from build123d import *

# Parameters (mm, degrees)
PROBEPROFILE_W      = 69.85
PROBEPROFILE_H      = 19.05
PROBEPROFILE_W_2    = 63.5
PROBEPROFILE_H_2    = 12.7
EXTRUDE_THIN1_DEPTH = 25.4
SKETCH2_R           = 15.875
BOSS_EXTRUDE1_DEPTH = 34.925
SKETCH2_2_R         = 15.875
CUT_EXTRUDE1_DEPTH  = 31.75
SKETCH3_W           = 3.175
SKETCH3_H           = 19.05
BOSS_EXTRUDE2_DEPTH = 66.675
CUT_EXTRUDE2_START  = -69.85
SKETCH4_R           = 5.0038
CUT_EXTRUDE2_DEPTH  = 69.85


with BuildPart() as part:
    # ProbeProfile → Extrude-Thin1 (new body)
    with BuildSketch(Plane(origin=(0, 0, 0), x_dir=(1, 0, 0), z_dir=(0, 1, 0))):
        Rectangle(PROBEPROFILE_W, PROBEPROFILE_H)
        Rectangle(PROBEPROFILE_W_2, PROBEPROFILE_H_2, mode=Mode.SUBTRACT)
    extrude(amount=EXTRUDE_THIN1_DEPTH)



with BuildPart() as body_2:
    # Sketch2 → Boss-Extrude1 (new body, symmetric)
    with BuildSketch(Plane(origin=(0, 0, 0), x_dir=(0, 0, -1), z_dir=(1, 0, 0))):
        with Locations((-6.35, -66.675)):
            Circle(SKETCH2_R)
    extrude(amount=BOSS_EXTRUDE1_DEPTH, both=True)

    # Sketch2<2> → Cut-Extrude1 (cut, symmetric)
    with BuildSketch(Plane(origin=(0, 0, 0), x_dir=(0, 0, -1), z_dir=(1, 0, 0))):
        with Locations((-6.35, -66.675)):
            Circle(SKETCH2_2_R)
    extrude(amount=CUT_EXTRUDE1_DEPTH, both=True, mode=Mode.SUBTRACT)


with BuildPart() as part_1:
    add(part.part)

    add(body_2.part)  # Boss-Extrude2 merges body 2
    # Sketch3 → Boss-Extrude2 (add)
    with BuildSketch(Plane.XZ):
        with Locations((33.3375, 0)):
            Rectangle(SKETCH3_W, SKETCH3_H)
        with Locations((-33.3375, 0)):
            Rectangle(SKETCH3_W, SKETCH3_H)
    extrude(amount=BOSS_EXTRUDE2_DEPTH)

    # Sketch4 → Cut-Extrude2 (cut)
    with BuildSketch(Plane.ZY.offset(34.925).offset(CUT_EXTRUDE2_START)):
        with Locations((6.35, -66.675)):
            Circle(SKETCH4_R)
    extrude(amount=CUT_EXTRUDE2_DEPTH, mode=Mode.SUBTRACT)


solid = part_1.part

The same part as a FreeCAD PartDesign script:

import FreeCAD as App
import Part
import Sketcher

V = App.Vector
Q = App.Units.Quantity


def add_polygon(sketch, points):
    """Adds a closed chain of lines whose ends are joined by coincident constraints."""
    first, n = sketch.GeometryCount, len(points)
    for a, b in zip(points, points[1:] + points[:1]):
        sketch.addGeometry(Part.LineSegment(App.Vector(*a, 0), App.Vector(*b, 0)), False)
    for i in range(n):
        sketch.addConstraint(Sketcher.Constraint("Coincident", first + i, 2, first + (i + 1) % n, 1))

doc = App.newDocument("Part")
body = doc.addObject("PartDesign::Body", "Body")

# Sketch on XZ plane
sketch1 = body.newObject("Sketcher::SketchObject", "Sketch")
sketch1.AttachmentSupport = (doc.getObject("XZ_Plane"), [""])
sketch1.MapMode = "FlatFace"
add_polygon(sketch1, [(-35, -10), (-35, 10), (35, 10), (35, -10)])  # lines 0-3
add_polygon(sketch1, [(32, 6), (-32, 6), (-32, -6), (32, -6)])  # lines 4-7
sketch1.addConstraint([
    Sketcher.Constraint("Vertical", 0),
    Sketcher.Constraint("Horizontal", 1),
    Sketcher.Constraint("Vertical", 2),
    Sketcher.Constraint("Horizontal", 3),
    Sketcher.Constraint("Horizontal", 4),
    Sketcher.Constraint("Vertical", 5),
    Sketcher.Constraint("Horizontal", 6),
    Sketcher.Constraint("Vertical", 7),
    Sketcher.Constraint("Symmetric", 0, 2, 2, 2, -1, 1),
    Sketcher.Constraint("Symmetric", 4, 2, 6, 2, -1, 1),
    Sketcher.Constraint("DistanceX", 4, 2, 4, 1, Q("2.5 in")),
    Sketcher.Constraint("DistanceY", 5, 2, 5, 1, Q("0.5 in")),
    Sketcher.Constraint("DistanceX", 1, 1, 1, 2, Q("2.75 in")),
    Sketcher.Constraint("DistanceY", 0, 1, 0, 2, Q("0.75 in")),
])
pad1 = body.newObject("PartDesign::Pad", "Pad")
pad1.Profile = sketch1
pad1.Length = Q("1 in")
pad1.Reversed = True
body2 = doc.addObject("PartDesign::Body", "Body001")
body2.AllowCompound = True

# Sketch on YZ plane
sketch2 = body2.newObject("Sketcher::SketchObject", "Sketch001")
sketch2.AttachmentSupport = (doc.getObject("YZ_Plane001"), [""])
sketch2.MapMode = "FlatFace"
sketch2.addGeometry(Part.Circle(V(-67, 6, 0), V(0, 0, 1), 16), False)
sketch2.addConstraint([
    Sketcher.Constraint("Diameter", 0, Q("1.25 in")),
    Sketcher.Constraint("DistanceY", -1, 1, 0, 3, Q("0.25 in")),
    Sketcher.Constraint("DistanceX", 0, 3, -1, 1, Q("2.625 in")),
])
pad2 = body2.newObject("PartDesign::Pad", "Pad001")
pad2.Profile = sketch2
pad2.Length = Q("2.75 in")
pad2.Midplane = True

# Sketch on YZ plane
sketch3 = body2.newObject("Sketcher::SketchObject", "Sketch002")
sketch3.AttachmentSupport = (doc.getObject("YZ_Plane001"), [""])
sketch3.MapMode = "FlatFace"
sketch3.addGeometry(Part.Circle(V(-67, 6, 0), V(0, 0, 1), 16), False)
sketch3.addConstraint([
    Sketcher.Constraint("Diameter", 0, Q("1.25 in")),
    Sketcher.Constraint("DistanceY", -1, 1, 0, 3, Q("0.25 in")),
    Sketcher.Constraint("DistanceX", 0, 3, -1, 1, Q("2.625 in")),
])
pocket1 = body2.newObject("PartDesign::Pocket", "Pocket")
pocket1.Profile = sketch3
pocket1.Length = Q("2.5 in")
pocket1.Midplane = True
body.AllowCompound = True
doc.recompute()

boolean = body.newObject("PartDesign::Boolean", "Boolean")
boolean.Type = "Fuse"
boolean.addObjects([body2])

# Sketch on XZ plane
sketch4 = body.newObject("Sketcher::SketchObject", "Sketch003")
sketch4.AttachmentSupport = (doc.getObject("XZ_Plane"), [""])
sketch4.MapMode = "FlatFace"
add_polygon(sketch4, [(31.8, 9.5), (31.8, -9.5), (34.9, -9.5), (34.9, 9.5)])  # lines 0-3
add_polygon(sketch4, [(-34.9, 9.5), (-34.9, -9.5), (-31.8, -9.5), (-31.8, 9.5)])  # lines 4-7
sketch4.addConstraint([
    Sketcher.Constraint("Vertical", 0),
    Sketcher.Constraint("Horizontal", 1),
    Sketcher.Constraint("Vertical", 2),
    Sketcher.Constraint("Horizontal", 3),
    Sketcher.Constraint("Vertical", 4),
    Sketcher.Constraint("Horizontal", 5),
    Sketcher.Constraint("Vertical", 6),
    Sketcher.Constraint("Horizontal", 7),
    Sketcher.Constraint("Symmetric", 2, 2, 4, 2, -1, 1),
    Sketcher.Constraint("Symmetric", 0, 2, 6, 2, -1, 1),
    Sketcher.Constraint("Horizontal", 1, 2, 4, 2),
    Sketcher.Constraint("DistanceY", 0, 2, 0, 1, Q("0.75 in")),
    Sketcher.Constraint("DistanceX", 5, 2, 0, 2, Q("2.5 in")),
    Sketcher.Constraint("DistanceX", 1, 1, 1, 2, Q("0.125 in")),
])
pad3 = body.newObject("PartDesign::Pad", "Pad002")
pad3.Profile = sketch4
pad3.Length = Q("2.625 in")

# Sketch on YZ plane
sketch5 = body.newObject("Sketcher::SketchObject", "Sketch004")
sketch5.AttachmentSupport = (doc.getObject("YZ_Plane"), [""])
sketch5.MapMode = "FlatFace"
sketch5.AttachmentOffset = App.Placement(V(0, 0, 1.375 * 25.4), App.Rotation())
sketch5.addGeometry(Part.Circle(V(-67, 6, 0), V(0, 0, 1), 5), False)
sketch5.addConstraint([
    Sketcher.Constraint("Diameter", 0, Q("0.394 in")),
    Sketcher.Constraint("DistanceY", -1, 1, 0, 3, Q("0.25 in")),
    Sketcher.Constraint("DistanceX", 0, 3, -1, 1, Q("2.625 in")),
])
pocket2 = body.newObject("PartDesign::Pocket", "Pocket001")
pocket2.Profile = sketch5
pocket2.Length = Q("2.75 in")

doc.recompute()
